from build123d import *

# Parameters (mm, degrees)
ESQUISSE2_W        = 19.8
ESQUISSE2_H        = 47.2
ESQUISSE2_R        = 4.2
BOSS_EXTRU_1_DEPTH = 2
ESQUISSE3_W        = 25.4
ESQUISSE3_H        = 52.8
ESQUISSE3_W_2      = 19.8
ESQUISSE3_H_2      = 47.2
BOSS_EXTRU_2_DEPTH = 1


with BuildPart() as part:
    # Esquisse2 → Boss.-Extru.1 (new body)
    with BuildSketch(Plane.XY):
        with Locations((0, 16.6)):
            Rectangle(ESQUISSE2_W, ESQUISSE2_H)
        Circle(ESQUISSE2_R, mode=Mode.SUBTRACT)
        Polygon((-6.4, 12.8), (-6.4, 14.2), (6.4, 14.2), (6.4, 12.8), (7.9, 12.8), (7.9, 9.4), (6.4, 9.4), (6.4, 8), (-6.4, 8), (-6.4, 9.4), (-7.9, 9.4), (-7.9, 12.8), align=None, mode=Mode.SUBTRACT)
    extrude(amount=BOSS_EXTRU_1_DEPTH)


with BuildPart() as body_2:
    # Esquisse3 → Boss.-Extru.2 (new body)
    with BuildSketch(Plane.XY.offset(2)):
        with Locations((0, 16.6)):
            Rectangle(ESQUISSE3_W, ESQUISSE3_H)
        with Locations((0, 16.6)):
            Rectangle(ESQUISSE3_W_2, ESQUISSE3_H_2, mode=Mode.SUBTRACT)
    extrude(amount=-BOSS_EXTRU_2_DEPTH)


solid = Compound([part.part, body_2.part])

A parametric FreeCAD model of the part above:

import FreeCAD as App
import Part
import Sketcher
Q = App.Units.Quantity


def add_polygon(sketch, points):
    """Adds a closed chain of lines whose ends are joined by coincident constraints."""
    first, n = sketch.GeometryCount, len(points)
    for a, b in zip(points, points[1:] + points[:1]):
        sketch.addGeometry(Part.LineSegment(App.Vector(*a, 0), App.Vector(*b, 0)), False)
    for i in range(n):
        sketch.addConstraint(Sketcher.Constraint("Coincident", first + i, 2, first + (i + 1) % n, 1))

doc = App.newDocument("Part")
body = doc.addObject("PartDesign::Body", "Body")

# Sketch on XY plane
sketch1 = body.newObject("Sketcher::SketchObject", "Sketch")
sketch1.AttachmentSupport = (doc.getObject("XY_Plane"), [""])
sketch1.MapMode = "FlatFace"
add_polygon(sketch1, [(-9.9, 40.2), (-9.9, -7), (9.9, -7), (9.9, 40.2)])  # lines 0-3
sketch1.addGeometry(Part.Circle(App.Vector(0, 0, 0), App.Vector(0, 0, 1), 4.2), False)  # 4
add_polygon(sketch1, [(-7.9, 12.8), (-6.4, 12.8), (-6.4, 14.2), (6.4, 14.2), (6.4, 12.8), (7.9, 12.8), (7.9, 9.4), (6.4, 9.4), (6.4, 8), (-6.4, 8), (-6.4, 9.4), (-7.9, 9.4)])  # lines 5-16
sketch1.addConstraint(Sketcher.Constraint("Vertical", 0))
sketch1.addConstraint(Sketcher.Constraint("Horizontal", 1))
sketch1.addConstraint(Sketcher.Constraint("Vertical", 2))
sketch1.addConstraint(Sketcher.Constraint("Horizontal", 3))
sketch1.addConstraint(Sketcher.Constraint("Horizontal", 5))
sketch1.addConstraint(Sketcher.Constraint("Vertical", 6))
sketch1.addConstraint(Sketcher.Constraint("Horizontal", 7))
sketch1.addConstraint(Sketcher.Constraint("Vertical", 8))
sketch1.addConstraint(Sketcher.Constraint("Horizontal", 9))
sketch1.addConstraint(Sketcher.Constraint("Vertical", 10))
sketch1.addConstraint(Sketcher.Constraint("Horizontal", 11))
sketch1.addConstraint(Sketcher.Constraint("Vertical", 12))
sketch1.addConstraint(Sketcher.Constraint("Horizontal", 13))
sketch1.addConstraint(Sketcher.Constraint("Vertical", 14))
sketch1.addConstraint(Sketcher.Constraint("Horizontal", 15))
sketch1.addConstraint(Sketcher.Constraint("Vertical", 16))
sketch1.addConstraint(Sketcher.Constraint("Coincident", 4, 3, -1, 1))
sketch1.addConstraint(Sketcher.Constraint("Symmetric", 5, 2, 8, 2, -2))
sketch1.addConstraint(Sketcher.Constraint("Symmetric", 11, 2, 14, 2, -2))
sketch1.addConstraint(Sketcher.Constraint("Vertical", 8, 2, 11, 2))
sketch1.addConstraint(Sketcher.Constraint("Equal", 5, 9))
sketch1.addConstraint(Sketcher.Constraint("Equal", 8, 12))
sketch1.addConstraint(Sketcher.Constraint("Diameter", 4, Q("8.4 mm")))
sketch1.addConstraint(Sketcher.Constraint("DistanceX", 1, 1, 1, 2, Q("19.8 mm")))
sketch1.addConstraint(Sketcher.Constraint("DistanceX", 5, 1, 5, 2, Q("1.5 mm")))
sketch1.addConstraint(Sketcher.Constraint("DistanceX", 7, 1, 7, 2, Q("12.8 mm")))
sketch1.addConstraint(Sketcher.Constraint("DistanceY", 0, 2, 0, 1, Q("47.2 mm")))
sketch1.addConstraint(Sketcher.Constraint("DistanceY", 6, 1, 6, 2, Q("1.4 mm")))
sketch1.addConstraint(Sketcher.Constraint("DistanceY", 10, 2, 10, 1, Q("3.4 mm")))
sketch1.addConstraint(Sketcher.Constraint("DistanceY", 0, 2, -1, 1, Q("7 mm")))
sketch1.addConstraint(Sketcher.Constraint("DistanceY", -1, 1, 12, 2, Q("8 mm")))
sketch1.addConstraint(Sketcher.Constraint("DistanceX", 0, 2, -1, 1, Q("9.9 mm")))
pad1 = body.newObject("PartDesign::Pad", "Pad")
pad1.Profile = sketch1
pad1.Length = 2
body2 = doc.addObject("PartDesign::Body", "Body001")

# Sketch on XY plane
sketch2 = body2.newObject("Sketcher::SketchObject", "Sketch001")
sketch2.AttachmentSupport = (doc.getObject("XY_Plane001"), [""])
sketch2.MapMode = "FlatFace"
sketch2.AttachmentOffset = App.Placement(App.Vector(0, 0, 2), App.Rotation())
add_polygon(sketch2, [(-13, 43), (-13, -10), (13, -10), (13, 43)])  # lines 0-3
add_polygon(sketch2, [(10, -7), (-10, -7), (-10, 40), (10, 40)])  # lines 4-7
sketch2.addConstraint(Sketcher.Constraint("Vertical", 0))
sketch2.addConstraint(Sketcher.Constraint("Horizontal", 1))
sketch2.addConstraint(Sketcher.Constraint("Vertical", 2))
sketch2.addConstraint(Sketcher.Constraint("Horizontal", 3))
sketch2.addConstraint(Sketcher.Constraint("Horizontal", 4))
sketch2.addConstraint(Sketcher.Constraint("Vertical", 5))
sketch2.addConstraint(Sketcher.Constraint("Horizontal", 6))
sketch2.addConstraint(Sketcher.Constraint("Vertical", 7))
sketch2.addConstraint(Sketcher.Constraint("DistanceX", 1, 1, 1, 2, Q("25.4 mm")))
sketch2.addConstraint(Sketcher.Constraint("DistanceX", 4, 2, 4, 1, Q("19.8 mm")))
sketch2.addConstraint(Sketcher.Constraint("DistanceY", 0, 2, 0, 1, Q("52.8 mm")))
sketch2.addConstraint(Sketcher.Constraint("DistanceY", 5, 1, 5, 2, Q("47.2 mm")))
sketch2.addConstraint(Sketcher.Constraint("DistanceY", -1, 1, 2, 2, Q("43 mm")))
sketch2.addConstraint(Sketcher.Constraint("DistanceY", 4, 2, -1, 1, Q("7 mm")))
sketch2.addConstraint(Sketcher.Constraint("DistanceX", 0, 2, -1, 1, Q("12.7 mm")))
sketch2.addConstraint(Sketcher.Constraint("DistanceX", 4, 2, -1, 1, Q("9.9 mm")))
pad2 = body2.newObject("PartDesign::Pad", "Pad001")
pad2.Profile = sketch2
pad2.Length = 1
pad2.Reversed = True

doc.recompute()
